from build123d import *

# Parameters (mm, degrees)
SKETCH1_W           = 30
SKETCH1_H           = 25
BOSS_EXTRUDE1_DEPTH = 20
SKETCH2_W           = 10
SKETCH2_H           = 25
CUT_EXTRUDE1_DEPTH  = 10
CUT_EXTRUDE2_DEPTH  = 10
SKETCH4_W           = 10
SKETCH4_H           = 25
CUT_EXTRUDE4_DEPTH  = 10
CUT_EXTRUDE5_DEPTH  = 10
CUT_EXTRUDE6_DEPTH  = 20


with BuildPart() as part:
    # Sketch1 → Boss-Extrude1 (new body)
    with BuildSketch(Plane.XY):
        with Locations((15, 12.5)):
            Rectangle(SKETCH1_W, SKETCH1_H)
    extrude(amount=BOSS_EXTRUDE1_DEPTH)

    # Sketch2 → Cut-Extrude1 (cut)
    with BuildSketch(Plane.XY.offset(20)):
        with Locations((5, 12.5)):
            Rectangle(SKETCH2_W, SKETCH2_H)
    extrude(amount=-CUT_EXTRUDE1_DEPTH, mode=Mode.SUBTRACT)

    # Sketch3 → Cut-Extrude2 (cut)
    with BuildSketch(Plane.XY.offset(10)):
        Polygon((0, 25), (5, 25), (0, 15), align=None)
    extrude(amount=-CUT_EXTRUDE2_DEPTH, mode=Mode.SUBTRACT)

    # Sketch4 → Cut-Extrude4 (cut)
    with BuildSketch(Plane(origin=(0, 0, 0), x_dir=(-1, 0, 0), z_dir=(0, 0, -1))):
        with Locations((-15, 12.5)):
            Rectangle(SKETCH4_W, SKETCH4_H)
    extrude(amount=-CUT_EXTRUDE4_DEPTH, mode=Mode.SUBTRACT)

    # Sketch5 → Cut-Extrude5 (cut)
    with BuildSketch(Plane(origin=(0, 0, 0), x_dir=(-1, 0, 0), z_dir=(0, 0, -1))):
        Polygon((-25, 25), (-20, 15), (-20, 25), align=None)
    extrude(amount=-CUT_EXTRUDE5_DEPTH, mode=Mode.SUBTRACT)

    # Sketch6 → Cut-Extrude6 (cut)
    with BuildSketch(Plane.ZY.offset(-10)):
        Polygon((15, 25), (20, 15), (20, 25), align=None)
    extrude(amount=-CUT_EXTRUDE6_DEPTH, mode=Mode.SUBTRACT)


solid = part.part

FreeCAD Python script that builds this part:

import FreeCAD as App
import Part
import Sketcher
from FreeCAD import Vector
Q = App.Units.Quantity

doc = App.newDocument("Part")
body = doc.addObject("PartDesign::Body", "Body")
body.AllowCompound = True

# Sketch on XY plane
sketch1 = doc.addObject("Sketcher::SketchObject", "Sketch")
body.addObject(sketch1)
sketch1.AttachmentSupport = (doc.XY_Plane, [""])
sketch1.MapMode = "FlatFace"
sketch1.addGeometry([
    Part.LineSegment(Vector(0, 25, 0), Vector(0, 0, 0)),
    Part.LineSegment(Vector(0, 0, 0), Vector(30, 0, 0)),
    Part.LineSegment(Vector(30, 0, 0), Vector(30, 25, 0)),
    Part.LineSegment(Vector(30, 25, 0), Vector(0, 25, 0)),
], False)
sketch1.addConstraint([
    Sketcher.Constraint("Coincident", 0, 2, 1, 1),
    Sketcher.Constraint("Coincident", 1, 2, 2, 1),
    Sketcher.Constraint("Coincident", 2, 2, 3, 1),
    Sketcher.Constraint("Coincident", 3, 2, 0, 1),
    Sketcher.Constraint("Vertical", 0),
    Sketcher.Constraint("Horizontal", 1),
    Sketcher.Constraint("Vertical", 2),
    Sketcher.Constraint("Horizontal", 3),
    Sketcher.Constraint("Coincident", 0, 2, -1, 1),
    Sketcher.Constraint("DistanceX", 1, 1, 1, 2, Q("30 mm")),
    Sketcher.Constraint("DistanceY", 0, 2, 0, 1, Q("25 mm")),
])
pad1 = doc.addObject("PartDesign::Pad", "Pad")
body.addObject(pad1)
pad1.Profile = sketch1
pad1.Length = 20

# Sketch on XY plane
sketch2 = doc.addObject("Sketcher::SketchObject", "Sketch001")
body.addObject(sketch2)
sketch2.AttachmentSupport = (doc.XY_Plane, [""])
sketch2.MapMode = "FlatFace"
sketch2.AttachmentOffset = App.Placement(Vector(0, 0, 20), App.Rotation())
sketch2.addGeometry([
    Part.LineSegment(Vector(0, 25, 0), Vector(0, 0, 0)),
    Part.LineSegment(Vector(0, 0, 0), Vector(10, 0, 0)),
    Part.LineSegment(Vector(10, 0, 0), Vector(10, 25, 0)),
    Part.LineSegment(Vector(10, 25, 0), Vector(0, 25, 0)),
], False)
sketch2.addConstraint([
    Sketcher.Constraint("Coincident", 0, 2, 1, 1),
    Sketcher.Constraint("Coincident", 1, 2, 2, 1),
    Sketcher.Constraint("Coincident", 2, 2, 3, 1),
    Sketcher.Constraint("Coincident", 3, 2, 0, 1),
    Sketcher.Constraint("Vertical", 0),
    Sketcher.Constraint("Horizontal", 1),
    Sketcher.Constraint("Vertical", 2),
    Sketcher.Constraint("Horizontal", 3),
    Sketcher.Constraint("Coincident", 0, 2, -1, 1),
    Sketcher.Constraint("DistanceX", 1, 1, 1, 2, Q("10 mm")),
    Sketcher.Constraint("DistanceY", 0, 2, 0, 1, Q("25 mm")),
])
pocket1 = doc.addObject("PartDesign::Pocket", "Pocket")
body.addObject(pocket1)
pocket1.Profile = sketch2
pocket1.Length = 10

# Sketch on XY plane
sketch3 = doc.addObject("Sketcher::SketchObject", "Sketch002")
body.addObject(sketch3)
sketch3.AttachmentSupport = (doc.XY_Plane, [""])
sketch3.MapMode = "FlatFace"
sketch3.AttachmentOffset = App.Placement(Vector(0, 0, 10), App.Rotation())
sketch3.addGeometry([
    Part.LineSegment(Vector(5, 25, 0), Vector(0, 25, 0)),
    Part.LineSegment(Vector(0, 25, 0), Vector(0, 15, 0)),
    Part.LineSegment(Vector(0, 15, 0), Vector(5, 25, 0)),
], False)
sketch3.addConstraint([
    Sketcher.Constraint("Coincident", 0, 2, 1, 1),
    Sketcher.Constraint("Coincident", 1, 2, 2, 1),
    Sketcher.Constraint("Coincident", 2, 2, 0, 1),
    Sketcher.Constraint("Horizontal", 0),
    Sketcher.Constraint("Vertical", 1),
    Sketcher.Constraint("PointOnObject", 0, 2, -2),
    Sketcher.Constraint("DistanceX", 0, 2, 0, 1, Q("5 mm")),
    Sketcher.Constraint("DistanceY", 1, 2, 1, 1, Q("10 mm")),
    Sketcher.Constraint("DistanceY", -1, 1, 0, 2, Q("25 mm")),
])
pocket2 = doc.addObject("PartDesign::Pocket", "Pocket001")
body.addObject(pocket2)
pocket2.Profile = sketch3
pocket2.Length = 10

# Sketch on XY plane
sketch4 = doc.addObject("Sketcher::SketchObject", "Sketch003")
body.addObject(sketch4)
sketch4.AttachmentSupport = (doc.XY_Plane, [""])
sketch4.MapMode = "FlatFace"
sketch4.addGeometry([
    Part.LineSegment(Vector(20, 25, 0), Vector(20, 0, 0)),
    Part.LineSegment(Vector(20, 0, 0), Vector(10, 0, 0)),
    Part.LineSegment(Vector(10, 0, 0), Vector(10, 25, 0)),
    Part.LineSegment(Vector(10, 25, 0), Vector(20, 25, 0)),
], False)
sketch4.addConstraint([
    Sketcher.Constraint("Coincident", 0, 2, 1, 1),
    Sketcher.Constraint("Coincident", 1, 2, 2, 1),
    Sketcher.Constraint("Coincident", 2, 2, 3, 1),
    Sketcher.Constraint("Coincident", 3, 2, 0, 1),
    Sketcher.Constraint("Vertical", 0),
    Sketcher.Constraint("Horizontal", 1),
    Sketcher.Constraint("Vertical", 2),
    Sketcher.Constraint("Horizontal", 3),
    Sketcher.Constraint("PointOnObject", 0, 2, -1),
    Sketcher.Constraint("DistanceX", 1, 2, 1, 1, Q("10 mm")),
    Sketcher.Constraint("DistanceY", 0, 2, 0, 1, Q("25 mm")),
    Sketcher.Constraint("DistanceX", -1, 1, 0, 2, Q("20 mm")),
])
pocket3 = doc.addObject("PartDesign::Pocket", "Pocket002")
body.addObject(pocket3)
pocket3.Profile = sketch4
pocket3.Length = 10
pocket3.Reversed = True

# Sketch on XY plane
sketch5 = doc.addObject("Sketcher::SketchObject", "Sketch004")
body.addObject(sketch5)
sketch5.AttachmentSupport = (doc.XY_Plane, [""])
sketch5.MapMode = "FlatFace"
sketch5.addGeometry([
    Part.LineSegment(Vector(25, 25, 0), Vector(20, 15, 0)),
    Part.LineSegment(Vector(20, 15, 0), Vector(20, 25, 0)),
    Part.LineSegment(Vector(20, 25, 0), Vector(25, 25, 0)),
], False)
sketch5.addConstraint([
    Sketcher.Constraint("Coincident", 0, 2, 1, 1),
    Sketcher.Constraint("Coincident", 1, 2, 2, 1),
    Sketcher.Constraint("Coincident", 2, 2, 0, 1),
    Sketcher.Constraint("Vertical", 1),
    Sketcher.Constraint("Horizontal", 2),
    Sketcher.Constraint("DistanceX", 2, 1, 2, 2, Q("5 mm")),
    Sketcher.Constraint("DistanceY", 1, 1, 1, 2, Q("10 mm")),
    Sketcher.Constraint("DistanceX", -1, 1, 0, 2, Q("20 mm")),
    Sketcher.Constraint("DistanceY", -1, 1, 0, 2, Q("15 mm")),
])
pocket4 = doc.addObject("PartDesign::Pocket", "Pocket003")
body.addObject(pocket4)
pocket4.Profile = sketch5
pocket4.Length = 10
pocket4.Reversed = True

# Sketch on YZ plane
sketch6 = doc.addObject("Sketcher::SketchObject", "Sketch005")
body.addObject(sketch6)
sketch6.AttachmentSupport = (doc.YZ_Plane, [""])
sketch6.MapMode = "FlatFace"
sketch6.AttachmentOffset = App.Placement(Vector(0, 0, 10), App.Rotation())
sketch6.addGeometry([
    Part.LineSegment(Vector(25, 15, 0), Vector(15, 20, 0)),
    Part.LineSegment(Vector(15, 20, 0), Vector(25, 20, 0)),
    Part.LineSegment(Vector(25, 20, 0), Vector(25, 15, 0)),
], False)
sketch6.addConstraint([
    Sketcher.Constraint("Coincident", 0, 2, 1, 1),
    Sketcher.Constraint("Coincident", 1, 2, 2, 1),
    Sketcher.Constraint("Coincident", 2, 2, 0, 1),
    Sketcher.Constraint("Horizontal", 1),
    Sketcher.Constraint("Vertical", 2),
    Sketcher.Constraint("DistanceX", 1, 1, 1, 2, Q("10 mm")),
    Sketcher.Constraint("DistanceY", 2, 2, 2, 1, Q("5 mm")),
    Sketcher.Constraint("DistanceX", -1, 1, 0, 2, Q("15 mm")),
    Sketcher.Constraint("DistanceY", -1, 1, 0, 2, Q("20 mm")),
])
pocket5 = doc.addObject("PartDesign::Pocket", "Pocket004")
body.addObject(pocket5)
pocket5.Profile = sketch6
pocket5.Length = 20
pocket5.Reversed = True

doc.recompute()
